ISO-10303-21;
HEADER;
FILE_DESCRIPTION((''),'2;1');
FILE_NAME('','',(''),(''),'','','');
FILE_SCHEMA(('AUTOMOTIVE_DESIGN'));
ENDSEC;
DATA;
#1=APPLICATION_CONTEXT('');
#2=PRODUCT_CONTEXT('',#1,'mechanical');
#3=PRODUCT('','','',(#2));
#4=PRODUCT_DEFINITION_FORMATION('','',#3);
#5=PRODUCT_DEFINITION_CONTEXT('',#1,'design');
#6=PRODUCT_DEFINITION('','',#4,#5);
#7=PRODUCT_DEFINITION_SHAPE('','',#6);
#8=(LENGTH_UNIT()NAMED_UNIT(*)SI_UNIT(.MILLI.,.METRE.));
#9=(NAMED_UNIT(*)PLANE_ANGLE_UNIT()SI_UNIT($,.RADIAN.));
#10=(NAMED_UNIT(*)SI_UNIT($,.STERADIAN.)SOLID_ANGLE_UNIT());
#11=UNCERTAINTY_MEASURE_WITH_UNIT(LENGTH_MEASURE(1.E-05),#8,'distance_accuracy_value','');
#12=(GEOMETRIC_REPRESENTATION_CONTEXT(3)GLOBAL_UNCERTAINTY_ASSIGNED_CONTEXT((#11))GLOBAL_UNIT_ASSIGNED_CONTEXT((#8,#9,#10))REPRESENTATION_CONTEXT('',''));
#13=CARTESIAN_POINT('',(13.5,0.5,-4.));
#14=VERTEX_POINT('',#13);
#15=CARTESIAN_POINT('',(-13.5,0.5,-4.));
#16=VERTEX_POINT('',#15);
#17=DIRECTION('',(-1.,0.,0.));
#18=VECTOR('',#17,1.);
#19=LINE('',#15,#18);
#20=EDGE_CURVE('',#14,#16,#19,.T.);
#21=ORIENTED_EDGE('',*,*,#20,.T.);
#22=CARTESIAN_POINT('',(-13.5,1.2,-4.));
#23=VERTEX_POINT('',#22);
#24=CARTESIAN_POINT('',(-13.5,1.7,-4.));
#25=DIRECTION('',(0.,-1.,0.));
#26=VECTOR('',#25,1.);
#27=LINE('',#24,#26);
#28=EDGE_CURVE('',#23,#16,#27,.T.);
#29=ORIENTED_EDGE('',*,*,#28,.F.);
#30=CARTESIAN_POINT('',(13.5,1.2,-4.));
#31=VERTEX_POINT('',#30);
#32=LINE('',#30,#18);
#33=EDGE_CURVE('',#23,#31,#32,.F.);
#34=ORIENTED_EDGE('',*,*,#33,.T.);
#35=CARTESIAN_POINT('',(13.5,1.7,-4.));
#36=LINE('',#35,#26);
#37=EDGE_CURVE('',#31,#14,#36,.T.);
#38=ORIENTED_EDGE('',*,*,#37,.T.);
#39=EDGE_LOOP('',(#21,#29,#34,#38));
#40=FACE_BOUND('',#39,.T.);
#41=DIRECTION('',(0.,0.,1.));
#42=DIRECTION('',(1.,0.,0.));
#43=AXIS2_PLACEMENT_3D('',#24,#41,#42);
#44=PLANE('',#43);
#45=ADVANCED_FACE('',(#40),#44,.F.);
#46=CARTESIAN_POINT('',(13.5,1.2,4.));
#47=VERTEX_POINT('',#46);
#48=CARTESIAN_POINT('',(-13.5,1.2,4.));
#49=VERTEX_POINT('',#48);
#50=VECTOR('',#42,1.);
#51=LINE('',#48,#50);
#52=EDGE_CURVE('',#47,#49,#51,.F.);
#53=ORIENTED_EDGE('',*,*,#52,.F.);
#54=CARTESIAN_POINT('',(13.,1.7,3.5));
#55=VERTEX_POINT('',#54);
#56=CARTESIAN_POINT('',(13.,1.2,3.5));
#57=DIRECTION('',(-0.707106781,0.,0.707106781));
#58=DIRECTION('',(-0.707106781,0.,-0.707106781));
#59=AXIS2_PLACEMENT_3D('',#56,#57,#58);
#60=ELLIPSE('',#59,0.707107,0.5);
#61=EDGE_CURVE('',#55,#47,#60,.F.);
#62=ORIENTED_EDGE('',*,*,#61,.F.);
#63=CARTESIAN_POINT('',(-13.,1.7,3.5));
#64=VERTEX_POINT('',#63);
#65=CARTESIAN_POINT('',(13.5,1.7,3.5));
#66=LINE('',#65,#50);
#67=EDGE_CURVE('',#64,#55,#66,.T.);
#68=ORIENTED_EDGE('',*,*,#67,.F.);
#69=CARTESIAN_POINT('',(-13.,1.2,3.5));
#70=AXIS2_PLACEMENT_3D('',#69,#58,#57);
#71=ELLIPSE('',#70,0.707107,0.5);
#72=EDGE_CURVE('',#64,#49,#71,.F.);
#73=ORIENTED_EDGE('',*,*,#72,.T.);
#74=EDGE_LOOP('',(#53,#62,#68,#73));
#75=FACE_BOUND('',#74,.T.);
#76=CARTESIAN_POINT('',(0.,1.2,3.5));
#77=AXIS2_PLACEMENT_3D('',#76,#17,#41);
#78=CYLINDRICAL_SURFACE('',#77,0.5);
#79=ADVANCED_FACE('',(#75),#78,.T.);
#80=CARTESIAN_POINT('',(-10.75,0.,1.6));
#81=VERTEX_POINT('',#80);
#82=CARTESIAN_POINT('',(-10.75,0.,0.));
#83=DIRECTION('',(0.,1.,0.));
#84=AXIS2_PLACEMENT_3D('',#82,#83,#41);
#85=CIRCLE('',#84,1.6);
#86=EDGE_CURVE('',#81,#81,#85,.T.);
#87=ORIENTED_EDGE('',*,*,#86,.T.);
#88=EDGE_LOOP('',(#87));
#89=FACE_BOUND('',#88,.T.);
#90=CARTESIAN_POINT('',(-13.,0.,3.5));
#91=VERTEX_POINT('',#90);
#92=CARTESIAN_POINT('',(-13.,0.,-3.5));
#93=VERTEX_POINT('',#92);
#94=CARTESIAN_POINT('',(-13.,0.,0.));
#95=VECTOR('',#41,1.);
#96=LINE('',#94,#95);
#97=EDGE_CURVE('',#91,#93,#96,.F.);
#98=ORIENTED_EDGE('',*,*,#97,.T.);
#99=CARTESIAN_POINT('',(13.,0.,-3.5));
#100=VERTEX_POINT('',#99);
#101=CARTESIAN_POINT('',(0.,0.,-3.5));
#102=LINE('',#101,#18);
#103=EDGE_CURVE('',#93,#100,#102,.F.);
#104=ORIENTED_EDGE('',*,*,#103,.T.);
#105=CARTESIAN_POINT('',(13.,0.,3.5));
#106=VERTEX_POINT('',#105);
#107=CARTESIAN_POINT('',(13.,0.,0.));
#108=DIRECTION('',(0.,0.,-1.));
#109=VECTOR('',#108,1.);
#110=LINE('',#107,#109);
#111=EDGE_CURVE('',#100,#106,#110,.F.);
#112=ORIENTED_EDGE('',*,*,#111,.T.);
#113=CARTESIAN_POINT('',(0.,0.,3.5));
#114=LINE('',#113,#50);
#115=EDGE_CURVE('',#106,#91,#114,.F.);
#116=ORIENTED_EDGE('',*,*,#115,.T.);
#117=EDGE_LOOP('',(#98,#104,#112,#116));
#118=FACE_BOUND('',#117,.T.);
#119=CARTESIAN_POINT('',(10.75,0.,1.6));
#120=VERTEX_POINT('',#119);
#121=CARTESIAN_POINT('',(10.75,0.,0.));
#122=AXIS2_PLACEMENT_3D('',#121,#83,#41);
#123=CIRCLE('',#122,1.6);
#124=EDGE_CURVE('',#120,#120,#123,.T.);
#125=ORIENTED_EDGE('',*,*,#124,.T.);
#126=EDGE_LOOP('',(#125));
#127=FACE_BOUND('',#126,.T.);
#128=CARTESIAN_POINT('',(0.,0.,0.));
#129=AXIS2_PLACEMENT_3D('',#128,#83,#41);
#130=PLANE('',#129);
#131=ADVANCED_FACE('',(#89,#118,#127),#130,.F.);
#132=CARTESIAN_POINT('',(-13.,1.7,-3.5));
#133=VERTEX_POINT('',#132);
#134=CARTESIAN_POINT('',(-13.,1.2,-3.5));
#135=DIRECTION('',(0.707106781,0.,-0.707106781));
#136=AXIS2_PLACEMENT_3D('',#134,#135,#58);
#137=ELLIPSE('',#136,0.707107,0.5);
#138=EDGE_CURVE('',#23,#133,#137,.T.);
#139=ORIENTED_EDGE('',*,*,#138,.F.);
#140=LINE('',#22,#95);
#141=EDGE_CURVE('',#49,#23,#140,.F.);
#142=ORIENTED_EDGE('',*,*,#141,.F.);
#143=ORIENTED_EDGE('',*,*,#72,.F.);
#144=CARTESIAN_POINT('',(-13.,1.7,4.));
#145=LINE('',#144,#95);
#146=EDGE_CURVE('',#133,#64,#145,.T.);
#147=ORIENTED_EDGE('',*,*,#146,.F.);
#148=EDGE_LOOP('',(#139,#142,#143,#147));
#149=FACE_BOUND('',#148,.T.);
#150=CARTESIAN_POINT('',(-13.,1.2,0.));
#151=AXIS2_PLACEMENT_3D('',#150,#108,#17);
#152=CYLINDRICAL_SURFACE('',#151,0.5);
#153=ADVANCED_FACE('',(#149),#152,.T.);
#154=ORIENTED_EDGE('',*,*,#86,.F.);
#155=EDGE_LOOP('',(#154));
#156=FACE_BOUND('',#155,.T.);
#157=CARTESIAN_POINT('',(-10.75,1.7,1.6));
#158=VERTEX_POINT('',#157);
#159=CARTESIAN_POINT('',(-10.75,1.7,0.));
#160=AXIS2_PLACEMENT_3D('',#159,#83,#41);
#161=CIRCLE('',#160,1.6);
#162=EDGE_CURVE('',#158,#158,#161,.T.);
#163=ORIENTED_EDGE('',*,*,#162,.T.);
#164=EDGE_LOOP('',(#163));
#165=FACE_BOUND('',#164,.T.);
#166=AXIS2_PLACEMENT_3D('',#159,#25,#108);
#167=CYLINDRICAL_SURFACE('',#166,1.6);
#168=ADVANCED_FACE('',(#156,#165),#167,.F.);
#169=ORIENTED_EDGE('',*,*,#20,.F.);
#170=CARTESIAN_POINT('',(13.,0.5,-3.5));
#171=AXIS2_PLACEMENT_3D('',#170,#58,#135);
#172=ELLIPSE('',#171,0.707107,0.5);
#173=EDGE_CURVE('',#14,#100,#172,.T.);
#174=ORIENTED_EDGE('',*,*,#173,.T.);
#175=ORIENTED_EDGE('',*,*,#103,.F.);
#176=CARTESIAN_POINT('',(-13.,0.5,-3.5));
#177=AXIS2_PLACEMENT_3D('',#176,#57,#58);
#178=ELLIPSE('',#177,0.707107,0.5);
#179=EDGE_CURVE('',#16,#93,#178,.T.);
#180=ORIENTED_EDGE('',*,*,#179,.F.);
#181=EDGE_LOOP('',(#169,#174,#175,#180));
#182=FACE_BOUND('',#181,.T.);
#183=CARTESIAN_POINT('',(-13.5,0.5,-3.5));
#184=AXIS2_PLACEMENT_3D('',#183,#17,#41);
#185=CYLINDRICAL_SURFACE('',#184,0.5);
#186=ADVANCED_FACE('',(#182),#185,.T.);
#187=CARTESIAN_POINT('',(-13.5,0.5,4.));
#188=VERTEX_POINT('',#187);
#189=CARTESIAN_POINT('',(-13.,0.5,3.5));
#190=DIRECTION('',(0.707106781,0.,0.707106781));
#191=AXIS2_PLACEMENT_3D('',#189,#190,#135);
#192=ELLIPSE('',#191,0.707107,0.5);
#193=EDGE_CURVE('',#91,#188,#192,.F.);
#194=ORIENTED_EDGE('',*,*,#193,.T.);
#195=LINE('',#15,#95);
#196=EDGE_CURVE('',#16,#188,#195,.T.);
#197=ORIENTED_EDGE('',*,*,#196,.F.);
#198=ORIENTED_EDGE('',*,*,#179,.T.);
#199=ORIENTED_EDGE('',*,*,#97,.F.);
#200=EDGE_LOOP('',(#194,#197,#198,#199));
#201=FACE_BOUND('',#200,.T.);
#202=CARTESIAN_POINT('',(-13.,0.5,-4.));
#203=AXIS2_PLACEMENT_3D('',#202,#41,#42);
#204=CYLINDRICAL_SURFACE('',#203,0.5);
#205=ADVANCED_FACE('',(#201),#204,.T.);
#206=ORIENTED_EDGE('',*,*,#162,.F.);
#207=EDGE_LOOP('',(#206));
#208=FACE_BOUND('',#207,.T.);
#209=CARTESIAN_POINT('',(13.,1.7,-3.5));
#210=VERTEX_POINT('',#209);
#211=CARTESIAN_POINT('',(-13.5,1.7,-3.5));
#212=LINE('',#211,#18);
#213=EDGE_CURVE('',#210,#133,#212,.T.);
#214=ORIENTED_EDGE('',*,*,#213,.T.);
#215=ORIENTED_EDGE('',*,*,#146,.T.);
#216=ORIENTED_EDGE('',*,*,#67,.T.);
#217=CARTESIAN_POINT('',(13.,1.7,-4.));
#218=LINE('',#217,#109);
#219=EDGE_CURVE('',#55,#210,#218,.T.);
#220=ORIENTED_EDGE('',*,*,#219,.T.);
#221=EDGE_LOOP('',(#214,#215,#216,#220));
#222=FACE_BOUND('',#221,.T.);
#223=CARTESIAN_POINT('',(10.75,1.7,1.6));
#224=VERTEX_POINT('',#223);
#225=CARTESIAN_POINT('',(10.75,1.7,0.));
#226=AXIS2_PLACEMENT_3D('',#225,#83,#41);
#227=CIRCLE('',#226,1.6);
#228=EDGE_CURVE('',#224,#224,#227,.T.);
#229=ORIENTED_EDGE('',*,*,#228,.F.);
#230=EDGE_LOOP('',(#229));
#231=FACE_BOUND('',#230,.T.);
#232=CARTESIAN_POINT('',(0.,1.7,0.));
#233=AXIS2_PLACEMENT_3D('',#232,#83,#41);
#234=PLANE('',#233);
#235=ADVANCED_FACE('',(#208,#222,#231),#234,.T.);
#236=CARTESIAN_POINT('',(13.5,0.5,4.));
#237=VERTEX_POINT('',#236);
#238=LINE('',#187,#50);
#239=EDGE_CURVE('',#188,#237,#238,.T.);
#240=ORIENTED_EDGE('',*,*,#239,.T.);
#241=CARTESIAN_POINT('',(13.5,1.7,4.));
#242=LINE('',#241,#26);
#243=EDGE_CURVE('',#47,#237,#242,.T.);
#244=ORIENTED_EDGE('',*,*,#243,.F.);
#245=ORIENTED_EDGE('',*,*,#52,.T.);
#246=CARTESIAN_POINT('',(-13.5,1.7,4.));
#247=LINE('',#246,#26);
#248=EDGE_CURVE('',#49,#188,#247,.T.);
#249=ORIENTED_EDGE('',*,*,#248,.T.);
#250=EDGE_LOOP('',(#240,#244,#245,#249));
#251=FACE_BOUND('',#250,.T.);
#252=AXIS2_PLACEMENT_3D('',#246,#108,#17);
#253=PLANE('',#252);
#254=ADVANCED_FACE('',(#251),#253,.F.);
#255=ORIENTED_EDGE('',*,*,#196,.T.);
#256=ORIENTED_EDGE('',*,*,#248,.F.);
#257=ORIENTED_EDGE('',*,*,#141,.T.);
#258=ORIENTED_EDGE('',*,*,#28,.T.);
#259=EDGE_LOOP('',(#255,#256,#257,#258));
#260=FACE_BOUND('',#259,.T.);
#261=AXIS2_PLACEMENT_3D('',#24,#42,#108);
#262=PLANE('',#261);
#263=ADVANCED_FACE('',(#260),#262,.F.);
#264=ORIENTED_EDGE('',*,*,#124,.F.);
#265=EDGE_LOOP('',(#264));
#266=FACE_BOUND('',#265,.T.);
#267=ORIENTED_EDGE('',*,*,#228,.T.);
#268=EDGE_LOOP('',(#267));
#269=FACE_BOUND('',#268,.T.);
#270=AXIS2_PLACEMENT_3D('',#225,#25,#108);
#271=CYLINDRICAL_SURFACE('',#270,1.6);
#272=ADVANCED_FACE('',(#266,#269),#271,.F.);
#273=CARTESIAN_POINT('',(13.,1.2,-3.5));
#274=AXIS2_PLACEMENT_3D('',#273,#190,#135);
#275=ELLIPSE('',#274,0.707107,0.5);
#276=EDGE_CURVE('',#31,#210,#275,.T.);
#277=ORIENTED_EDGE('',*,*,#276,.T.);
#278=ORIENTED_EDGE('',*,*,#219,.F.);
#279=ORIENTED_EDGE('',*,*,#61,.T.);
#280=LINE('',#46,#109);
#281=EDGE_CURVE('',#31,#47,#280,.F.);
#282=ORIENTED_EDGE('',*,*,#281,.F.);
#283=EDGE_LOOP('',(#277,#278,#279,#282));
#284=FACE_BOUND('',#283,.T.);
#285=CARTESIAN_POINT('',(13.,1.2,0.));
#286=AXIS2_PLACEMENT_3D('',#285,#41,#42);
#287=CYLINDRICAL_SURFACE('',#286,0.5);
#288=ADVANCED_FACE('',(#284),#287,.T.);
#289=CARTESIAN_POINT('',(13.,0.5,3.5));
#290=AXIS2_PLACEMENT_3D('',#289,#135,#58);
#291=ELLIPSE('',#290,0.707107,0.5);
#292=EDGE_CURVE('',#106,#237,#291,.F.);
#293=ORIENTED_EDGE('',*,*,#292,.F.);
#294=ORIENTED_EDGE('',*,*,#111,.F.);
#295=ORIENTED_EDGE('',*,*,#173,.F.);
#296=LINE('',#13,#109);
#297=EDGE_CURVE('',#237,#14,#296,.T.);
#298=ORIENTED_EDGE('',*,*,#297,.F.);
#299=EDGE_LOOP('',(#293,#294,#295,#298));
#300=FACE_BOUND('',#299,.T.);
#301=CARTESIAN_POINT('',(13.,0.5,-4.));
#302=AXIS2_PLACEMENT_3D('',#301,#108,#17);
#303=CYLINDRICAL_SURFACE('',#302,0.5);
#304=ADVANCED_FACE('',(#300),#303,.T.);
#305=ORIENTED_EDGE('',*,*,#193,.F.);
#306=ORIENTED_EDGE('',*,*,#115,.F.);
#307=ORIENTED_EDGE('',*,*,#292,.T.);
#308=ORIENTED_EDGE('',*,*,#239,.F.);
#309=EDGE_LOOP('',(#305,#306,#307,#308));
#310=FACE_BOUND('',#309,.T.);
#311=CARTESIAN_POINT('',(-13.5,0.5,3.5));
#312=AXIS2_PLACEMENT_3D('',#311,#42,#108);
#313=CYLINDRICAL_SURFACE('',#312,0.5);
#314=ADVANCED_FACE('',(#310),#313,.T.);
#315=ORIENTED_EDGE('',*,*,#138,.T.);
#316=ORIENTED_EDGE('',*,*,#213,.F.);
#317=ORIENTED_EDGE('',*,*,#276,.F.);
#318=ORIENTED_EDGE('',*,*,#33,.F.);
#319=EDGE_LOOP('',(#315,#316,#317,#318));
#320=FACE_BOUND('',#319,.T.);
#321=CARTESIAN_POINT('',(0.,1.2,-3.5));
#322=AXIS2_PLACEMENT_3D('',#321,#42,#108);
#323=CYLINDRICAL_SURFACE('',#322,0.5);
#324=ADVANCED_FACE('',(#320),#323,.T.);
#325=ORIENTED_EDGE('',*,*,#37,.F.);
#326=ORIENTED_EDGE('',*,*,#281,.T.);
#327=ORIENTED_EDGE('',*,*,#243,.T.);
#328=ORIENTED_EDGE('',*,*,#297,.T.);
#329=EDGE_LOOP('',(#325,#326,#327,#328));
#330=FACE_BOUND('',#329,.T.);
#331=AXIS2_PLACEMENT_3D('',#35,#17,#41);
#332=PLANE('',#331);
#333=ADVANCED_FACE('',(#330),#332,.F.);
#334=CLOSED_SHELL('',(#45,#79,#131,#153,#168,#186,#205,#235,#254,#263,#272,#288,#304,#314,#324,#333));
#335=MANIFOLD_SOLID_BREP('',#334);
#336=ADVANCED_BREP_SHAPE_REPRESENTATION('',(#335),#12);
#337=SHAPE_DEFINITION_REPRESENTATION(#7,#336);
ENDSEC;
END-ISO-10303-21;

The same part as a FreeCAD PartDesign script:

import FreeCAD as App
import Part
import Sketcher


def edges_at(feature, points):
    """Names of the edges that pass closest to the given points."""
    edges = feature.Shape.Edges
    near = lambda p: min(range(len(edges)), key=lambda i: edges[i].distToShape(Part.Vertex(*p))[0])
    return sorted({f"Edge{near(p) + 1}" for p in points})


def add_polygon(sketch, points):
    """Adds a closed chain of lines whose ends are joined by coincident constraints."""
    first, n = sketch.GeometryCount, len(points)
    for a, b in zip(points, points[1:] + points[:1]):
        sketch.addGeometry(Part.LineSegment(App.Vector(*a, 0), App.Vector(*b, 0)), False)
    for i in range(n):
        sketch.addConstraint(Sketcher.Constraint("Coincident", first + i, 2, first + (i + 1) % n, 1))

doc = App.newDocument("Part")
body = doc.addObject("PartDesign::Body", "Body")

# Sketch on XZ plane
sketch1 = doc.addObject("Sketcher::SketchObject", "Sketch")
body.addObject(sketch1)
sketch1.AttachmentSupport = (doc.XZ_Plane, [""])
sketch1.MapMode = "FlatFace"
add_polygon(sketch1, [(-13.5, -4), (-13.5, 4), (13.5, 4), (13.5, -4)])  # lines 0-3
sketch1.addGeometry(Part.Circle(App.Vector(-10.8, 0, 0), App.Vector(0, 0, 1), 1.6), False)  # 4
sketch1.addGeometry(Part.Circle(App.Vector(10.8, 0, 0), App.Vector(0, 0, 1), 1.6), False)  # 5
sketch1.addConstraint([
    Sketcher.Constraint("Vertical", 0),
    Sketcher.Constraint("Horizontal", 1),
    Sketcher.Constraint("Vertical", 2),
    Sketcher.Constraint("Horizontal", 3),
    Sketcher.Constraint("Equal", 4, 5),
    Sketcher.Constraint("Symmetric", 4, 3, 5, 3, -1, 1),
    Sketcher.Constraint("Symmetric", 0, 2, 2, 2, -1, 1),
    Sketcher.Constraint("PointOnObject", 4, 3, -1),
    Sketcher.Constraint("Diameter", 4, 3.2),
    Sketcher.Constraint("DistanceX", 1, 1, 1, 2, 27.0),
    Sketcher.Constraint("DistanceY", 0, 1, 0, 2, 8.0),
    Sketcher.Constraint("DistanceX", 4, 3, 5, 3, 21.5),
])
pad1 = doc.addObject("PartDesign::Pad", "Pad")
body.addObject(pad1)
pad1.Profile = sketch1
pad1.Length = 1.7
pad1.Reversed = True
doc.recompute()

fillet = doc.addObject("PartDesign::Fillet", "Fillet")
body.addObject(fillet)
fillet.Base = (pad1, edges_at(pad1, [
    (0, 0, -4),
    (13.5, 0, 0),
    (0, 0, 4),
    (-13.5, 0, 0),
]))
fillet.Radius = 0.5
doc.recompute()

fillet2 = doc.addObject("PartDesign::Fillet", "Fillet001")
body.addObject(fillet2)
fillet2.Base = (fillet, edges_at(fillet, [
    (13.5, 1.7, 0),
    (0, 1.7, -4),
    (-13.5, 1.7, 0),
    (0, 1.7, 4),
]))
fillet2.Radius = 0.5

doc.recompute()
